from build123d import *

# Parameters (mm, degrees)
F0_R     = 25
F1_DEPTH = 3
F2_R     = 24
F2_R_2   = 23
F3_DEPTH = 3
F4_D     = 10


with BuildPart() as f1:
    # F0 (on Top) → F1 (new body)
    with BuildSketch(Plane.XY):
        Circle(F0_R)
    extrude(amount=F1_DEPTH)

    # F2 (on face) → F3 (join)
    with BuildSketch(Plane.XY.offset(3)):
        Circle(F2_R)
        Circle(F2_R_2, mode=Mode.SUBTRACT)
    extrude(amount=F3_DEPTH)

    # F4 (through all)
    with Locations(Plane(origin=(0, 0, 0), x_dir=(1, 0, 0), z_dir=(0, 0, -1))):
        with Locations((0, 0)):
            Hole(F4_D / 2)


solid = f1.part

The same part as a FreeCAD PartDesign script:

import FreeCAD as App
import Part
import Sketcher

V = App.Vector
Q = App.Units.Quantity

doc = App.newDocument("Part")
body = doc.addObject("PartDesign::Body", "Body")

# Sketch on XY plane
sketch1 = doc.addObject("Sketcher::SketchObject", "Sketch")
body.addObject(sketch1)
sketch1.AttachmentSupport = (doc.XY_Plane, [""])
sketch1.MapMode = "FlatFace"
sketch1.addGeometry(Part.Circle(V(0, 0, 0), V(0, 0, 1), 25), False)
sketch1.addConstraint([
    Sketcher.Constraint("Coincident", 0, 3, -1, 1),
    Sketcher.Constraint("Diameter", 0, Q("50 mm")),
])
pad1 = doc.addObject("PartDesign::Pad", "Pad")
body.addObject(pad1)
pad1.Profile = sketch1
pad1.Length = 3

# Sketch on XY plane
sketch2 = doc.addObject("Sketcher::SketchObject", "Sketch001")
body.addObject(sketch2)
sketch2.AttachmentSupport = (doc.XY_Plane, [""])
sketch2.MapMode = "FlatFace"
sketch2.AttachmentOffset = App.Placement(V(0, 0, 3), App.Rotation())
sketch2.addGeometry([
    Part.Circle(V(0, 0, 0), V(0, 0, 1), 24),
    Part.Circle(V(0, 0, 0), V(0, 0, 1), 23),
], False)
sketch2.addConstraint([
    Sketcher.Constraint("Coincident", 0, 3, -1, 1),
    Sketcher.Constraint("Coincident", 1, 3, -1, 1),
    Sketcher.Constraint("Diameter", 0, Q("48 mm")),
    Sketcher.Constraint("Diameter", 1, Q("46 mm")),
])
pad2 = doc.addObject("PartDesign::Pad", "Pad001")
body.addObject(pad2)
pad2.Profile = sketch2
pad2.Length = 3

# Sketch on XY plane
sketch3 = doc.addObject("Sketcher::SketchObject", "Sketch002")
body.addObject(sketch3)
sketch3.AttachmentSupport = (doc.XY_Plane, [""])
sketch3.MapMode = "FlatFace"
sketch3.addGeometry(Part.Circle(V(0, 0, 0), V(0, 0, 1), 5), False)
sketch3.addConstraint([
    Sketcher.Constraint("Coincident", 0, 3, -1, 1),
    Sketcher.Constraint("Diameter", 0, Q("10 mm")),
])
doc.recompute()
hole = doc.addObject("PartDesign::Hole", "Hole")
body.addObject(hole)
hole.Profile = sketch3
hole.ThreadType = "None"
hole.Diameter = 10
hole.DepthType = "ThroughAll"
hole.Reversed = True

doc.recompute()
